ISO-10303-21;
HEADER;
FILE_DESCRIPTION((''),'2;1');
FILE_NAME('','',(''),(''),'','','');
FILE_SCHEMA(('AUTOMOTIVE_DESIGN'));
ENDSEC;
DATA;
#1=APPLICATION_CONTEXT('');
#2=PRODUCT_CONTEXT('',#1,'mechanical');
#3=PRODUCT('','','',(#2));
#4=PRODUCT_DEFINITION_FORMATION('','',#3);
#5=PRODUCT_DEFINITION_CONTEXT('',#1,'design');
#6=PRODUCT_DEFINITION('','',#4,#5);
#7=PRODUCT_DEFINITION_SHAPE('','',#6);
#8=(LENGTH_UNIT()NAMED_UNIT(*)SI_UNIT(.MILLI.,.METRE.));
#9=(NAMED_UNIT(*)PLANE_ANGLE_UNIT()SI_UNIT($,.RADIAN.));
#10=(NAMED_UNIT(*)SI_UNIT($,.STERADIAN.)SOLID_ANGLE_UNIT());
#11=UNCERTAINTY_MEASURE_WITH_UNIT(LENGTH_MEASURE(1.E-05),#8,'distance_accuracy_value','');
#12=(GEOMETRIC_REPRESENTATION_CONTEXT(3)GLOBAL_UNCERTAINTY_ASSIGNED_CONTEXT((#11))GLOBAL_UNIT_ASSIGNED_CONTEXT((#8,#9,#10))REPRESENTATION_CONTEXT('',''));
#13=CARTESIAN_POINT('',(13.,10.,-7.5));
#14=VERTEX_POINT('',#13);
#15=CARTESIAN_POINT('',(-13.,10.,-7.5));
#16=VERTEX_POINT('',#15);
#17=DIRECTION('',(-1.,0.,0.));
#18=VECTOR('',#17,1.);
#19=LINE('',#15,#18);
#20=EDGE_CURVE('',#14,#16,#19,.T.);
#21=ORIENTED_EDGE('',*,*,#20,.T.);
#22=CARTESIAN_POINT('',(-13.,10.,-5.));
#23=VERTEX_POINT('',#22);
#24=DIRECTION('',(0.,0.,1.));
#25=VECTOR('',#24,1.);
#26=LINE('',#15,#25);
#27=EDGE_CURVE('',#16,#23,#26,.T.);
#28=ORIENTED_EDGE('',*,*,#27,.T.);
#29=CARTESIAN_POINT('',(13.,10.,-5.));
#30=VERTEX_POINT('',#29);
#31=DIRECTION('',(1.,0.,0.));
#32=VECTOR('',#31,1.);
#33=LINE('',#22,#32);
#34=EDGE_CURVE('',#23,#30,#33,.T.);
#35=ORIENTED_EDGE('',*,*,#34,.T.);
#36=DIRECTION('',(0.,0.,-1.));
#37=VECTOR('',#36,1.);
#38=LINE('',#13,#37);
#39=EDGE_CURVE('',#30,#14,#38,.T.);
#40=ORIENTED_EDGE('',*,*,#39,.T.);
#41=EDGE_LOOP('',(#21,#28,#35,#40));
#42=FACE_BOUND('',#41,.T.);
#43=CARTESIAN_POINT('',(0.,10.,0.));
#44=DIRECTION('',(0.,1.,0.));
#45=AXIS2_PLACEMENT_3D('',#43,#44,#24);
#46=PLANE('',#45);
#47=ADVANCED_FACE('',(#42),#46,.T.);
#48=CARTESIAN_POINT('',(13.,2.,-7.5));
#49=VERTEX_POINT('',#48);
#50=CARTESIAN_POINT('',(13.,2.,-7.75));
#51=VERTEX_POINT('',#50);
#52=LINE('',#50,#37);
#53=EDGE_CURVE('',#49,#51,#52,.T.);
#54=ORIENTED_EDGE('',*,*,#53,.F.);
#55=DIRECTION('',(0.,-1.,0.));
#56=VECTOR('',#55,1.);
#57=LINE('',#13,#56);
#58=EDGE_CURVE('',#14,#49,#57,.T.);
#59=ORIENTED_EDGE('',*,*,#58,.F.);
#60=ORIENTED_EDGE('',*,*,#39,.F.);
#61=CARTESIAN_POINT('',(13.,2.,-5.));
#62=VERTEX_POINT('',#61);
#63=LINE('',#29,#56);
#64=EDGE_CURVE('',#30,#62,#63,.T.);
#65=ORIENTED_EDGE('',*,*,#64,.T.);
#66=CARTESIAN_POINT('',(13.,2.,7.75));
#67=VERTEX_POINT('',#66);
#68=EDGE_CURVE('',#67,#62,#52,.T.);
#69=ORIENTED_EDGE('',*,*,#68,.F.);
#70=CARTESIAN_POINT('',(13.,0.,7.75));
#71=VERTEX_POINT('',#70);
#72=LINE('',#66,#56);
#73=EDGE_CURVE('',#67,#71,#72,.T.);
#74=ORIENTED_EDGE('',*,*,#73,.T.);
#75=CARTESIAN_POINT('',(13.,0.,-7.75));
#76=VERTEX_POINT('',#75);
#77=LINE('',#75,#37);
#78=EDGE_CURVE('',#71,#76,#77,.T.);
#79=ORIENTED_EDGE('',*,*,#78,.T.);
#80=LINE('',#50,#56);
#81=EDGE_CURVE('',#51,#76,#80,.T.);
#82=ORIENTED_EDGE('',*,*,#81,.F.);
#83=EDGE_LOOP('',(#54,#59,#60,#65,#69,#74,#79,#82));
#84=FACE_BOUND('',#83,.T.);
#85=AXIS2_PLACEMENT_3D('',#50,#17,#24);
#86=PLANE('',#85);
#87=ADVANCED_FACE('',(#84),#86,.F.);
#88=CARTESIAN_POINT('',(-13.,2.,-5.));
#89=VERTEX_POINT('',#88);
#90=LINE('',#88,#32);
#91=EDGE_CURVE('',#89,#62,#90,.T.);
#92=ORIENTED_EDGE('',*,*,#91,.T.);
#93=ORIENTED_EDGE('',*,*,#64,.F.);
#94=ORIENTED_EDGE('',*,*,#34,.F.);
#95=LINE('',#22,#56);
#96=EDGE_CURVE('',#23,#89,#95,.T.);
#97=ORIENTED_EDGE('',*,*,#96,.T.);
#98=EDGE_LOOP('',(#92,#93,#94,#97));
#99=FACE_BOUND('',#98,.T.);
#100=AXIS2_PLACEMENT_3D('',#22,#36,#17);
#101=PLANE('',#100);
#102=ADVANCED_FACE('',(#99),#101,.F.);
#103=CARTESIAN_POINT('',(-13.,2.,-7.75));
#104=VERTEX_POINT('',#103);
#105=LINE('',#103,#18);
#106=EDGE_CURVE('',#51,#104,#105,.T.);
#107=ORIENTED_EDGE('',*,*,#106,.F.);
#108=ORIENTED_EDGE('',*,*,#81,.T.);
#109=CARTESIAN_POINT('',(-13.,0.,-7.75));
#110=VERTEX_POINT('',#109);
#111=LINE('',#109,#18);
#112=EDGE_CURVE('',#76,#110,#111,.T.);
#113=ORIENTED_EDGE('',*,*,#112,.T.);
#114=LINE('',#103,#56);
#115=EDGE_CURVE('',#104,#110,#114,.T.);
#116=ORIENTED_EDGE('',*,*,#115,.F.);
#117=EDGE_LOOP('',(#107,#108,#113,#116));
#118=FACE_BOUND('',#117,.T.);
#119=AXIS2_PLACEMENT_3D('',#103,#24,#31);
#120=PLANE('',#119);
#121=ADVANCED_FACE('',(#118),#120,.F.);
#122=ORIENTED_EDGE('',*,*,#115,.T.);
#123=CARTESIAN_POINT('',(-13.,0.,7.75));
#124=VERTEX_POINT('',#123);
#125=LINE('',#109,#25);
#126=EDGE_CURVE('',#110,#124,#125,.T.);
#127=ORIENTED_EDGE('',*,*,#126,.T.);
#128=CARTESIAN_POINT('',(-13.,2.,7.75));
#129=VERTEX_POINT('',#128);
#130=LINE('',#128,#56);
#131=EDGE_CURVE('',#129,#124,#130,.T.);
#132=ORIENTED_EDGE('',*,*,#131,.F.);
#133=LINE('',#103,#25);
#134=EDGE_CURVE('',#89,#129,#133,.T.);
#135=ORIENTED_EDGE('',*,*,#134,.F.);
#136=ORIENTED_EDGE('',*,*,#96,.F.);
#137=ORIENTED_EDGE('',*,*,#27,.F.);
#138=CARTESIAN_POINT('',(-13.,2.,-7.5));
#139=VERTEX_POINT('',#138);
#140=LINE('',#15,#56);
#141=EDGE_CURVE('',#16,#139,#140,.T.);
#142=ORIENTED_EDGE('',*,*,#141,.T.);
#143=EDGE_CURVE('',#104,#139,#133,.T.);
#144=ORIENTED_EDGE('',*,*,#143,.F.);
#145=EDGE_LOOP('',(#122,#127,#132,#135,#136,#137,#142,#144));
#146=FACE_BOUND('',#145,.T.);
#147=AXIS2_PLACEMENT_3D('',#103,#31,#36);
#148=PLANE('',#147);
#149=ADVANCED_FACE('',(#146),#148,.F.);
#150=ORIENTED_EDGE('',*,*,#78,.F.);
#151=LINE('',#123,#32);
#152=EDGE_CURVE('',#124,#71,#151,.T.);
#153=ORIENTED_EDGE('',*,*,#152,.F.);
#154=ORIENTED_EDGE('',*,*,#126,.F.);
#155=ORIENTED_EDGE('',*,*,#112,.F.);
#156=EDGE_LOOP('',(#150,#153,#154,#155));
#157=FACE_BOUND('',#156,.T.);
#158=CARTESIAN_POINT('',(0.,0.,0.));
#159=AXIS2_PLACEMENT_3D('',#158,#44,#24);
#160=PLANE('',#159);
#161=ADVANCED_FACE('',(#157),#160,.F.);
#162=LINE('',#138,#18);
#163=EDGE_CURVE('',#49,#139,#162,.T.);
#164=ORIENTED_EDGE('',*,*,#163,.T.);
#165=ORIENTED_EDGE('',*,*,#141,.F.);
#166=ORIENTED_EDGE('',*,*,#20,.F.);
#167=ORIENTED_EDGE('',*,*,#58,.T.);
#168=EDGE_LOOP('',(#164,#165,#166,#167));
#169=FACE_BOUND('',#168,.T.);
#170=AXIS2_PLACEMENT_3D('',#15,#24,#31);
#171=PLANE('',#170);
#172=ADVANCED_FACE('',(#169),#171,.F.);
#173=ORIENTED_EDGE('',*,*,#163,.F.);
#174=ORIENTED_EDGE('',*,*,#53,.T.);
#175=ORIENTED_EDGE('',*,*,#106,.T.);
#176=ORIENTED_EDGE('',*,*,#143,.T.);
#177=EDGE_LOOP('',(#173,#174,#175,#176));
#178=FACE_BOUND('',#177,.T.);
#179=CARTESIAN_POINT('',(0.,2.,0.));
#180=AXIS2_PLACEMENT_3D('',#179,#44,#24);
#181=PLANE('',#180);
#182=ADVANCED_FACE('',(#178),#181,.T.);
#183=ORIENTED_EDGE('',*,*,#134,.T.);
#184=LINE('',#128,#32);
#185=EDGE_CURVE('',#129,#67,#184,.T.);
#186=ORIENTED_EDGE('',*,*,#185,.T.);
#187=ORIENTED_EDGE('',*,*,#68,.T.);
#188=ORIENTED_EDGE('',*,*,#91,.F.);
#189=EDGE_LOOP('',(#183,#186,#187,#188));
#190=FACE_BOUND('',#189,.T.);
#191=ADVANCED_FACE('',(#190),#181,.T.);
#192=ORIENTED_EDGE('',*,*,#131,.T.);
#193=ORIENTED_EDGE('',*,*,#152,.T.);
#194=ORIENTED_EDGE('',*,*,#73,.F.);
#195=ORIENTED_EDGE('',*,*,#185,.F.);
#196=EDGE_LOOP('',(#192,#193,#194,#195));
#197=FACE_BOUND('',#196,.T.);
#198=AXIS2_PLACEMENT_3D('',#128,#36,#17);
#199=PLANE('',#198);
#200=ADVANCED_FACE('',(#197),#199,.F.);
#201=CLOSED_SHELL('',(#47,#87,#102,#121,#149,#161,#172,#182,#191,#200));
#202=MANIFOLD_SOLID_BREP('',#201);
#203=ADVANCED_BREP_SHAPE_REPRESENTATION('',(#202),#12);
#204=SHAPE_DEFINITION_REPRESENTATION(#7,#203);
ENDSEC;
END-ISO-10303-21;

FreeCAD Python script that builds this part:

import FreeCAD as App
import Part
import Sketcher

V = App.Vector


def add_polygon(sketch, points):
    """Adds a closed chain of lines whose ends are joined by coincident constraints."""
    first, n = sketch.GeometryCount, len(points)
    for a, b in zip(points, points[1:] + points[:1]):
        sketch.addGeometry(Part.LineSegment(App.Vector(*a, 0), App.Vector(*b, 0)), False)
    for i in range(n):
        sketch.addConstraint(Sketcher.Constraint("Coincident", first + i, 2, first + (i + 1) % n, 1))

doc = App.newDocument("Part")
body = doc.addObject("PartDesign::Body", "Body")

# Sketch on XZ plane
sketch1 = body.newObject("Sketcher::SketchObject", "Sketch")
sketch1.AttachmentSupport = (doc.getObject("XZ_Plane"), [""])
sketch1.MapMode = "FlatFace"
add_polygon(sketch1, [(-13, -7.75), (-13, 7.75), (13, 7.75), (13, -7.75)])  # lines 0-3
sketch1.addConstraint([
    Sketcher.Constraint("Vertical", 0),
    Sketcher.Constraint("Horizontal", 1),
    Sketcher.Constraint("Vertical", 2),
    Sketcher.Constraint("Horizontal", 3),
    Sketcher.Constraint("Symmetric", 0, 2, 2, 2, -1, 1),
    Sketcher.Constraint("DistanceX", 1, 1, 1, 2, 26.0),
    Sketcher.Constraint("DistanceY", 0, 1, 0, 2, 15.5),
])
pad1 = body.newObject("PartDesign::Pad", "Pad")
pad1.Profile = sketch1
pad1.Length = 2
pad1.Reversed = True

# Sketch on XZ plane
sketch2 = body.newObject("Sketcher::SketchObject", "Sketch001")
sketch2.AttachmentSupport = (doc.getObject("XZ_Plane"), [""])
sketch2.MapMode = "FlatFace"
sketch2.AttachmentOffset = App.Placement(V(0, 0, -2), App.Rotation())
add_polygon(sketch2, [(-13, -7.5), (-13, -5), (13, -5), (13, -7.5)])  # lines 0-3
sketch2.addConstraint([
    Sketcher.Constraint("Vertical", 0),
    Sketcher.Constraint("Horizontal", 1),
    Sketcher.Constraint("Vertical", 2),
    Sketcher.Constraint("Horizontal", 3),
    Sketcher.Constraint("DistanceX", 1, 1, 1, 2, 26.0),
    Sketcher.Constraint("DistanceY", 0, 1, 0, 2, 2.5),
    Sketcher.Constraint("DistanceX", 0, 2, -1, 1, 13.0),
    Sketcher.Constraint("DistanceY", 0, 2, -1, 1, 5.0),
])
pad2 = body.newObject("PartDesign::Pad", "Pad001")
pad2.Profile = sketch2
pad2.Length = 8
pad2.Reversed = True

doc.recompute()
